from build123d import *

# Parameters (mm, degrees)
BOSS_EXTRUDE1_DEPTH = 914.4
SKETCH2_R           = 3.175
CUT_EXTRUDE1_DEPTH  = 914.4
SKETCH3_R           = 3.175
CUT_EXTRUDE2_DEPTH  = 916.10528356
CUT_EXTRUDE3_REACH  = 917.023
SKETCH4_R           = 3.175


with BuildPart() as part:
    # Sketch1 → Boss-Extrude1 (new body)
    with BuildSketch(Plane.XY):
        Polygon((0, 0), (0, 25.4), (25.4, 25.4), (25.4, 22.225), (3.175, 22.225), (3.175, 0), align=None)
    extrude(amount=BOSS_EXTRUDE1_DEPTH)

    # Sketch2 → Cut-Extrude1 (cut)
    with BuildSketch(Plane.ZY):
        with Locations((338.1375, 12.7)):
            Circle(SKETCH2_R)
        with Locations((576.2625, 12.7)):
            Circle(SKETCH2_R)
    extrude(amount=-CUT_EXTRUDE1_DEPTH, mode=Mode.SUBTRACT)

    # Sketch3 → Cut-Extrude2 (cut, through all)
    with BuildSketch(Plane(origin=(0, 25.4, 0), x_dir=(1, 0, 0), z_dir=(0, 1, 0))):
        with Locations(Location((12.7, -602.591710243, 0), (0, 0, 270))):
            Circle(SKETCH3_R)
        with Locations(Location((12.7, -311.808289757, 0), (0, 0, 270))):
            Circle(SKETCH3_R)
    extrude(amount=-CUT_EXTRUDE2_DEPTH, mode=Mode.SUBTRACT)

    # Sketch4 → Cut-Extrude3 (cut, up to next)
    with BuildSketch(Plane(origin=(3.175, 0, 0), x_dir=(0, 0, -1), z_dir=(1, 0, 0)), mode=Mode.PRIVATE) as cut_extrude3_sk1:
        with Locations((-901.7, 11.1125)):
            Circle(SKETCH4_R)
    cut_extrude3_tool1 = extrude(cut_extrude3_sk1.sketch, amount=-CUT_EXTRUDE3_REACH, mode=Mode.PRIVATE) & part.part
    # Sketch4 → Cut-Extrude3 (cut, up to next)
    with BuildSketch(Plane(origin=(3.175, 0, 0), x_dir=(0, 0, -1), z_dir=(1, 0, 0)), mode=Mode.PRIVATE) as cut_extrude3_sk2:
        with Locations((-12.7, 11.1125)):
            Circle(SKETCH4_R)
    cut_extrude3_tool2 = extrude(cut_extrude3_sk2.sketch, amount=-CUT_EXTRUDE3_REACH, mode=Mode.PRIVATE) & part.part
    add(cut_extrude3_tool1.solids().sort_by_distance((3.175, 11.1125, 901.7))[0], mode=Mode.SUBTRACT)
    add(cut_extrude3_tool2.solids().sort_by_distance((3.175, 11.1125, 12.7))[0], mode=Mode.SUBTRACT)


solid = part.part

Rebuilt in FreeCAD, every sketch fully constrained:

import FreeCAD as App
import Part
import Sketcher

V = App.Vector
Q = App.Units.Quantity


def add_polygon(sketch, points):
    """Adds a closed chain of lines whose ends are joined by coincident constraints."""
    first, n = sketch.GeometryCount, len(points)
    for a, b in zip(points, points[1:] + points[:1]):
        sketch.addGeometry(Part.LineSegment(App.Vector(*a, 0), App.Vector(*b, 0)), False)
    for i in range(n):
        sketch.addConstraint(Sketcher.Constraint("Coincident", first + i, 2, first + (i + 1) % n, 1))

doc = App.newDocument("Part")
params = doc.addObject("Spreadsheet::Sheet", "Params")
for row, (alias, value) in enumerate([
    ("sketch1_width", "1 in"),
    ("sketch1_width2", "0.125 in"),
    ("pad1_length", "36 in"),
    ("sketch2_diameter", "0.25 in"),
    ("pocket1_length", "36 in"),
    ("sketch3_diameter", "0.25 in"),
    ("sketch4_diameter", "0.25 in"),
    ("sketch5_diameter", "0.25 in"),
], start=1):
    params.set(f"A{row}", alias)
    params.set(f"B{row}", "=" + value)
    params.setAlias(f"B{row}", alias)

body = doc.addObject("PartDesign::Body", "Body")

# Sketch on XY plane
sketch1 = body.newObject("Sketcher::SketchObject", "Sketch")
sketch1.AttachmentSupport = (doc.getObject("XY_Plane"), [""])
sketch1.MapMode = "FlatFace"
add_polygon(sketch1, [(0, 25.4), (0, 0), (3.2, 0), (3.2, 22.2), (25.4, 22.2), (25.4, 25.4)])  # lines 0-5
sketch1.addConstraint(Sketcher.Constraint("Vertical", 0))
sketch1.addConstraint(Sketcher.Constraint("Horizontal", 1))
sketch1.addConstraint(Sketcher.Constraint("Vertical", 2))
sketch1.addConstraint(Sketcher.Constraint("Horizontal", 3))
sketch1.addConstraint(Sketcher.Constraint("Vertical", 4))
sketch1.addConstraint(Sketcher.Constraint("Horizontal", 5))
sketch1.addConstraint(Sketcher.Constraint("Coincident", 0, 2, -1, 1))
sketch1.addConstraint(Sketcher.Constraint("Equal", 5, 0))
sketch1.addConstraint(Sketcher.Constraint("Equal", 3, 2))
sketch1.addConstraint(Sketcher.Constraint("DistanceX", 5, 2, 5, 1, Q("1 in")))
sketch1.addConstraint(Sketcher.Constraint("DistanceX", 1, 1, 1, 2, Q("0.125 in")))
sketch1.setExpression("Constraints[15]", "Params.sketch1_width")
sketch1.setExpression("Constraints[16]", "Params.sketch1_width2")
pad1 = body.newObject("PartDesign::Pad", "Pad")
pad1.Profile = sketch1
pad1.setExpression("Length", "Params.pad1_length")

# Sketch on YZ plane
sketch2 = body.newObject("Sketcher::SketchObject", "Sketch001")
sketch2.AttachmentSupport = (doc.getObject("YZ_Plane"), [""])
sketch2.MapMode = "FlatFace"
sketch2.addGeometry(Part.Circle(V(12.7, 338.1, 0), V(0, 0, 1), 3.2), False)
sketch2.addGeometry(Part.Circle(V(12.7, 576.3, 0), V(0, 0, 1), 3.2), False)
sketch2.addConstraint(Sketcher.Constraint("Equal", 0, 1))
sketch2.addConstraint(Sketcher.Constraint("Vertical", 0, 3, 1, 3))
sketch2.addConstraint(Sketcher.Constraint("Diameter", 0, Q("0.25 in")))
sketch2.addConstraint(Sketcher.Constraint("DistanceX", -1, 1, 0, 3, Q("0.5 in")))
sketch2.addConstraint(Sketcher.Constraint("DistanceY", -1, 1, 0, 3, Q("13.3125 in")))
sketch2.addConstraint(Sketcher.Constraint("DistanceY", -1, 1, 1, 3, Q("22.6875 in")))
sketch2.setExpression("Constraints[2]", "Params.sketch2_diameter")
pocket1 = body.newObject("PartDesign::Pocket", "Pocket")
pocket1.Profile = sketch2
pocket1.setExpression("Length", "Params.pocket1_length")
pocket1.Reversed = True

# Sketch on XZ plane
sketch3 = body.newObject("Sketcher::SketchObject", "Sketch002")
sketch3.AttachmentSupport = (doc.getObject("XZ_Plane"), [""])
sketch3.MapMode = "FlatFace"
sketch3.AttachmentOffset = App.Placement(V(0, 0, -1 * 25.4), App.Rotation())
sketch3.addGeometry(Part.Circle(V(12.7, 602.6, 0), V(0, 0, 1), 3.2), False)
sketch3.addGeometry(Part.Circle(V(12.7, 311.8, 0), V(0, 0, 1), 3.2), False)
sketch3.addConstraint(Sketcher.Constraint("Equal", 0, 1))
sketch3.addConstraint(Sketcher.Constraint("Vertical", 0, 3, 1, 3))
sketch3.addConstraint(Sketcher.Constraint("Diameter", 0, Q("0.25 in")))
sketch3.addConstraint(Sketcher.Constraint("DistanceX", -1, 1, 0, 3, Q("0.5 in")))
sketch3.addConstraint(Sketcher.Constraint("DistanceY", -1, 1, 0, 3, 602.59171))
sketch3.addConstraint(Sketcher.Constraint("DistanceY", -1, 1, 1, 3, 311.80829))
sketch3.setExpression("Constraints[2]", "Params.sketch3_diameter")
pocket2 = body.newObject("PartDesign::Pocket", "Pocket001")
pocket2.Profile = sketch3
pocket2.Type = "ThroughAll"
pocket2.Reversed = True

# Sketch on YZ plane
sketch4 = body.newObject("Sketcher::SketchObject", "Sketch003")
sketch4.AttachmentSupport = (doc.getObject("YZ_Plane"), [""])
sketch4.MapMode = "FlatFace"
sketch4.AttachmentOffset = App.Placement(V(0, 0, 0.125 * 25.4), App.Rotation())
sketch4.addGeometry(Part.Circle(V(11.1, 901.7, 0), V(0, 0, 1), 3.2), False)
sketch4.addConstraint(Sketcher.Constraint("Diameter", 0, Q("0.25 in")))
sketch4.addConstraint(Sketcher.Constraint("DistanceY", -1, 1, 0, 3, Q("35.5 in")))
sketch4.addConstraint(Sketcher.Constraint("DistanceX", -1, 1, 0, 3, Q("0.4375 in")))
sketch4.setExpression("Constraints[0]", "Params.sketch4_diameter")
pocket3 = body.newObject("PartDesign::Pocket", "Pocket002")
pocket3.Profile = sketch4
pocket3.Type = "UpToFirst"

# Sketch on YZ plane
sketch5 = body.newObject("Sketcher::SketchObject", "Sketch004")
sketch5.AttachmentSupport = (doc.getObject("YZ_Plane"), [""])
sketch5.MapMode = "FlatFace"
sketch5.AttachmentOffset = App.Placement(V(0, 0, 0.125 * 25.4), App.Rotation())
sketch5.addGeometry(Part.Circle(V(11.1, 12.7, 0), V(0, 0, 1), 3.2), False)
sketch5.addConstraint(Sketcher.Constraint("Diameter", 0, Q("0.25 in")))
sketch5.addConstraint(Sketcher.Constraint("DistanceY", -1, 1, 0, 3, Q("0.5 in")))
sketch5.addConstraint(Sketcher.Constraint("DistanceX", -1, 1, 0, 3, Q("0.4375 in")))
sketch5.setExpression("Constraints[0]", "Params.sketch5_diameter")
pocket4 = body.newObject("PartDesign::Pocket", "Pocket003")
pocket4.Profile = sketch5
pocket4.Type = "UpToFirst"

doc.recompute()
